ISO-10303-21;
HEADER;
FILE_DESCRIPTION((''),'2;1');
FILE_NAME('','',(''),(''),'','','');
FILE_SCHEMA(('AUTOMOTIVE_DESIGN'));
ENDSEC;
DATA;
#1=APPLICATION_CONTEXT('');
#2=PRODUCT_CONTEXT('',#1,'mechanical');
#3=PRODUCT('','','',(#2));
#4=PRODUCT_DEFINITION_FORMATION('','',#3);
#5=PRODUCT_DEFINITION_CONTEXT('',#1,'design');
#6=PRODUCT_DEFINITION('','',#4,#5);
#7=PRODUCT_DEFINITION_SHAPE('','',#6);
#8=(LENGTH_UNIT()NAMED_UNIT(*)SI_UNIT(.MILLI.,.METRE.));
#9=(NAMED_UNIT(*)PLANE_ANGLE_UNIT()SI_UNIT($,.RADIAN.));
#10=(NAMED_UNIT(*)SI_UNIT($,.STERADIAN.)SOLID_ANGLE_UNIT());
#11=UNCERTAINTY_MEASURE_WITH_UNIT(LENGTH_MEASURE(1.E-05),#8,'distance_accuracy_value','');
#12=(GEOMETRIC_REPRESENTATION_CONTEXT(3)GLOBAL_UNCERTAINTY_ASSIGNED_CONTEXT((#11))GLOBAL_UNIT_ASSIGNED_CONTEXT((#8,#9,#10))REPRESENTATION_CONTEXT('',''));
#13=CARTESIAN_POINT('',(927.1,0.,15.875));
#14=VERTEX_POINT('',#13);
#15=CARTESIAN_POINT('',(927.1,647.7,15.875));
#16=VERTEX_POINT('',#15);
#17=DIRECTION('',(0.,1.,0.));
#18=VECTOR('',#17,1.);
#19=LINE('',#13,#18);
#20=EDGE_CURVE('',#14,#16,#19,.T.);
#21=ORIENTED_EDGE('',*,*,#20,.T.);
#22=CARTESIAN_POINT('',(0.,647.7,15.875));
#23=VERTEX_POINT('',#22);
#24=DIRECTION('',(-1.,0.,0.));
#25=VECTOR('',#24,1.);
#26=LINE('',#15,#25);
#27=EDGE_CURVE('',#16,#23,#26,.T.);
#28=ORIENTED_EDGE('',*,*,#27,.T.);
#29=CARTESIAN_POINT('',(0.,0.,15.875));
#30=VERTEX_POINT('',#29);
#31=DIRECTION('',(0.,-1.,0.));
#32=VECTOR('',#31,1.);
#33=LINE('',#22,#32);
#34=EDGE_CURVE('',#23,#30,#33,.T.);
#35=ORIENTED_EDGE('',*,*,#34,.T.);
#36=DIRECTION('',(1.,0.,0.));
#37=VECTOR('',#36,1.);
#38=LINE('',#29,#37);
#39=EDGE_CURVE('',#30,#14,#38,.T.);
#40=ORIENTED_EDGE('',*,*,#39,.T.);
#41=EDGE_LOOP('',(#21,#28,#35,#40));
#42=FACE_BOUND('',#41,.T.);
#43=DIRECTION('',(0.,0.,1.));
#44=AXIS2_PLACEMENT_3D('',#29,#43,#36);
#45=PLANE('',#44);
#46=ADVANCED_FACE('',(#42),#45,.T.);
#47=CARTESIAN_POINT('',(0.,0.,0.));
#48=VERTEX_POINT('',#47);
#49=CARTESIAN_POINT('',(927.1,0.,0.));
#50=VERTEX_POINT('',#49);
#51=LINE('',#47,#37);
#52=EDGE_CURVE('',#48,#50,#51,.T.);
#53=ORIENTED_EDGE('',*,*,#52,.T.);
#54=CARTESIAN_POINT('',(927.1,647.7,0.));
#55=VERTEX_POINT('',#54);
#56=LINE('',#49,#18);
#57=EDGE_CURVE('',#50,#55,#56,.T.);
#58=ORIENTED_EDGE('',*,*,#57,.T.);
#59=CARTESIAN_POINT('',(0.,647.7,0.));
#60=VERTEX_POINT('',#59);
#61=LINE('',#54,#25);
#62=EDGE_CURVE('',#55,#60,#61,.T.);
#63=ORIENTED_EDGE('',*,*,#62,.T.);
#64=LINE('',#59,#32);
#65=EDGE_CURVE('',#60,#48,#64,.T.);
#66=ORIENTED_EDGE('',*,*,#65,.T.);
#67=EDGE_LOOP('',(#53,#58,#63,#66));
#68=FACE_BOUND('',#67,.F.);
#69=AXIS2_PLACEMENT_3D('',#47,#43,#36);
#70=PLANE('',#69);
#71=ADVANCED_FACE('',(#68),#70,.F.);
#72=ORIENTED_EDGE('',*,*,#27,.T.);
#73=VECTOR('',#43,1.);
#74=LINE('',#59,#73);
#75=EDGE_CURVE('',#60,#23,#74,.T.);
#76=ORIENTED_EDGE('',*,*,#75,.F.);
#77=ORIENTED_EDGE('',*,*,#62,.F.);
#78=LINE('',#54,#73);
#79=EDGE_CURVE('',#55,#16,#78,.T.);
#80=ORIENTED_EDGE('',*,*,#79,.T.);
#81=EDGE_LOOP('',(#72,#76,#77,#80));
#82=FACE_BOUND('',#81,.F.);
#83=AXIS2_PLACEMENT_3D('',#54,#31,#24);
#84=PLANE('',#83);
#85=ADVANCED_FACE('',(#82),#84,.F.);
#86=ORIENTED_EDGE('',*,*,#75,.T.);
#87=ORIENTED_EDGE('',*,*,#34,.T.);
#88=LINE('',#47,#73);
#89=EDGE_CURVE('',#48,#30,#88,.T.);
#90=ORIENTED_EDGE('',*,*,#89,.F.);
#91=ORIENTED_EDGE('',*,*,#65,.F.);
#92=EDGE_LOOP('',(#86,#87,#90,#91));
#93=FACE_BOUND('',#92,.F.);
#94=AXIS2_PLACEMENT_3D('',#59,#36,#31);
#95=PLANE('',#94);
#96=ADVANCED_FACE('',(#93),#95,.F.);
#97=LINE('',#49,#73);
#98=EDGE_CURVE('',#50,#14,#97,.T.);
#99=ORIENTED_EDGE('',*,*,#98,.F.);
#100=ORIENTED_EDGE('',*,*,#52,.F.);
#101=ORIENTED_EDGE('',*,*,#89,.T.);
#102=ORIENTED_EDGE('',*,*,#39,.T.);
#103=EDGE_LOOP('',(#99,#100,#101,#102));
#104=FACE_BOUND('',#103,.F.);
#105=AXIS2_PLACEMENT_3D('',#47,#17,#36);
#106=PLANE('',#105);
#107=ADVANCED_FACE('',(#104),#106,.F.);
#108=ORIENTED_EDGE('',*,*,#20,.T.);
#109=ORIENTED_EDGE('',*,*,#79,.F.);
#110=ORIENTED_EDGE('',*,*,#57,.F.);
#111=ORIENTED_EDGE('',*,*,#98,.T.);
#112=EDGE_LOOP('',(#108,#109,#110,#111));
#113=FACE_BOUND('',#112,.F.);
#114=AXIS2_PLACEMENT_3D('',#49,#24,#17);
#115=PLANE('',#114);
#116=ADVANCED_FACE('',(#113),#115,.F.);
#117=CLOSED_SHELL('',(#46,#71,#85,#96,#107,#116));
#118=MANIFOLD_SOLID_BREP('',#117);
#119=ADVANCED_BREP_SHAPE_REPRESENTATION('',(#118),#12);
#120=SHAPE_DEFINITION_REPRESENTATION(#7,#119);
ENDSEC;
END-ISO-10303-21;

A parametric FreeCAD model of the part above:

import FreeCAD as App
import Part
import Sketcher

V = App.Vector
Q = App.Units.Quantity


def add_polygon(sketch, points):
    """Adds a closed chain of lines whose ends are joined by coincident constraints."""
    first, n = sketch.GeometryCount, len(points)
    for a, b in zip(points, points[1:] + points[:1]):
        sketch.addGeometry(Part.LineSegment(App.Vector(*a, 0), App.Vector(*b, 0)), False)
    for i in range(n):
        sketch.addConstraint(Sketcher.Constraint("Coincident", first + i, 2, first + (i + 1) % n, 1))

doc = App.newDocument("Part")
body = doc.addObject("PartDesign::Body", "Body")

# Sketch on XY plane
sketch1 = body.newObject("Sketcher::SketchObject", "Sketch")
sketch1.AttachmentSupport = (doc.getObject("XY_Plane"), [""])
sketch1.MapMode = "FlatFace"
add_polygon(sketch1, [(0, 648), (0, 0), (927, 0), (927, 648)])  # lines 0-3
sketch1.addConstraint([
    Sketcher.Constraint("Vertical", 0),
    Sketcher.Constraint("Horizontal", 1),
    Sketcher.Constraint("Vertical", 2),
    Sketcher.Constraint("Horizontal", 3),
    Sketcher.Constraint("Coincident", 0, 2, -1, 1),
    Sketcher.Constraint("DistanceX", 1, 1, 1, 2, Q("36.5 in")),
    Sketcher.Constraint("DistanceY", 0, 2, 0, 1, Q("25.5 in")),
])
pad1 = body.newObject("PartDesign::Pad", "Pad")
pad1.Profile = sketch1
pad1.Length = Q("0.625 in")

doc.recompute()
